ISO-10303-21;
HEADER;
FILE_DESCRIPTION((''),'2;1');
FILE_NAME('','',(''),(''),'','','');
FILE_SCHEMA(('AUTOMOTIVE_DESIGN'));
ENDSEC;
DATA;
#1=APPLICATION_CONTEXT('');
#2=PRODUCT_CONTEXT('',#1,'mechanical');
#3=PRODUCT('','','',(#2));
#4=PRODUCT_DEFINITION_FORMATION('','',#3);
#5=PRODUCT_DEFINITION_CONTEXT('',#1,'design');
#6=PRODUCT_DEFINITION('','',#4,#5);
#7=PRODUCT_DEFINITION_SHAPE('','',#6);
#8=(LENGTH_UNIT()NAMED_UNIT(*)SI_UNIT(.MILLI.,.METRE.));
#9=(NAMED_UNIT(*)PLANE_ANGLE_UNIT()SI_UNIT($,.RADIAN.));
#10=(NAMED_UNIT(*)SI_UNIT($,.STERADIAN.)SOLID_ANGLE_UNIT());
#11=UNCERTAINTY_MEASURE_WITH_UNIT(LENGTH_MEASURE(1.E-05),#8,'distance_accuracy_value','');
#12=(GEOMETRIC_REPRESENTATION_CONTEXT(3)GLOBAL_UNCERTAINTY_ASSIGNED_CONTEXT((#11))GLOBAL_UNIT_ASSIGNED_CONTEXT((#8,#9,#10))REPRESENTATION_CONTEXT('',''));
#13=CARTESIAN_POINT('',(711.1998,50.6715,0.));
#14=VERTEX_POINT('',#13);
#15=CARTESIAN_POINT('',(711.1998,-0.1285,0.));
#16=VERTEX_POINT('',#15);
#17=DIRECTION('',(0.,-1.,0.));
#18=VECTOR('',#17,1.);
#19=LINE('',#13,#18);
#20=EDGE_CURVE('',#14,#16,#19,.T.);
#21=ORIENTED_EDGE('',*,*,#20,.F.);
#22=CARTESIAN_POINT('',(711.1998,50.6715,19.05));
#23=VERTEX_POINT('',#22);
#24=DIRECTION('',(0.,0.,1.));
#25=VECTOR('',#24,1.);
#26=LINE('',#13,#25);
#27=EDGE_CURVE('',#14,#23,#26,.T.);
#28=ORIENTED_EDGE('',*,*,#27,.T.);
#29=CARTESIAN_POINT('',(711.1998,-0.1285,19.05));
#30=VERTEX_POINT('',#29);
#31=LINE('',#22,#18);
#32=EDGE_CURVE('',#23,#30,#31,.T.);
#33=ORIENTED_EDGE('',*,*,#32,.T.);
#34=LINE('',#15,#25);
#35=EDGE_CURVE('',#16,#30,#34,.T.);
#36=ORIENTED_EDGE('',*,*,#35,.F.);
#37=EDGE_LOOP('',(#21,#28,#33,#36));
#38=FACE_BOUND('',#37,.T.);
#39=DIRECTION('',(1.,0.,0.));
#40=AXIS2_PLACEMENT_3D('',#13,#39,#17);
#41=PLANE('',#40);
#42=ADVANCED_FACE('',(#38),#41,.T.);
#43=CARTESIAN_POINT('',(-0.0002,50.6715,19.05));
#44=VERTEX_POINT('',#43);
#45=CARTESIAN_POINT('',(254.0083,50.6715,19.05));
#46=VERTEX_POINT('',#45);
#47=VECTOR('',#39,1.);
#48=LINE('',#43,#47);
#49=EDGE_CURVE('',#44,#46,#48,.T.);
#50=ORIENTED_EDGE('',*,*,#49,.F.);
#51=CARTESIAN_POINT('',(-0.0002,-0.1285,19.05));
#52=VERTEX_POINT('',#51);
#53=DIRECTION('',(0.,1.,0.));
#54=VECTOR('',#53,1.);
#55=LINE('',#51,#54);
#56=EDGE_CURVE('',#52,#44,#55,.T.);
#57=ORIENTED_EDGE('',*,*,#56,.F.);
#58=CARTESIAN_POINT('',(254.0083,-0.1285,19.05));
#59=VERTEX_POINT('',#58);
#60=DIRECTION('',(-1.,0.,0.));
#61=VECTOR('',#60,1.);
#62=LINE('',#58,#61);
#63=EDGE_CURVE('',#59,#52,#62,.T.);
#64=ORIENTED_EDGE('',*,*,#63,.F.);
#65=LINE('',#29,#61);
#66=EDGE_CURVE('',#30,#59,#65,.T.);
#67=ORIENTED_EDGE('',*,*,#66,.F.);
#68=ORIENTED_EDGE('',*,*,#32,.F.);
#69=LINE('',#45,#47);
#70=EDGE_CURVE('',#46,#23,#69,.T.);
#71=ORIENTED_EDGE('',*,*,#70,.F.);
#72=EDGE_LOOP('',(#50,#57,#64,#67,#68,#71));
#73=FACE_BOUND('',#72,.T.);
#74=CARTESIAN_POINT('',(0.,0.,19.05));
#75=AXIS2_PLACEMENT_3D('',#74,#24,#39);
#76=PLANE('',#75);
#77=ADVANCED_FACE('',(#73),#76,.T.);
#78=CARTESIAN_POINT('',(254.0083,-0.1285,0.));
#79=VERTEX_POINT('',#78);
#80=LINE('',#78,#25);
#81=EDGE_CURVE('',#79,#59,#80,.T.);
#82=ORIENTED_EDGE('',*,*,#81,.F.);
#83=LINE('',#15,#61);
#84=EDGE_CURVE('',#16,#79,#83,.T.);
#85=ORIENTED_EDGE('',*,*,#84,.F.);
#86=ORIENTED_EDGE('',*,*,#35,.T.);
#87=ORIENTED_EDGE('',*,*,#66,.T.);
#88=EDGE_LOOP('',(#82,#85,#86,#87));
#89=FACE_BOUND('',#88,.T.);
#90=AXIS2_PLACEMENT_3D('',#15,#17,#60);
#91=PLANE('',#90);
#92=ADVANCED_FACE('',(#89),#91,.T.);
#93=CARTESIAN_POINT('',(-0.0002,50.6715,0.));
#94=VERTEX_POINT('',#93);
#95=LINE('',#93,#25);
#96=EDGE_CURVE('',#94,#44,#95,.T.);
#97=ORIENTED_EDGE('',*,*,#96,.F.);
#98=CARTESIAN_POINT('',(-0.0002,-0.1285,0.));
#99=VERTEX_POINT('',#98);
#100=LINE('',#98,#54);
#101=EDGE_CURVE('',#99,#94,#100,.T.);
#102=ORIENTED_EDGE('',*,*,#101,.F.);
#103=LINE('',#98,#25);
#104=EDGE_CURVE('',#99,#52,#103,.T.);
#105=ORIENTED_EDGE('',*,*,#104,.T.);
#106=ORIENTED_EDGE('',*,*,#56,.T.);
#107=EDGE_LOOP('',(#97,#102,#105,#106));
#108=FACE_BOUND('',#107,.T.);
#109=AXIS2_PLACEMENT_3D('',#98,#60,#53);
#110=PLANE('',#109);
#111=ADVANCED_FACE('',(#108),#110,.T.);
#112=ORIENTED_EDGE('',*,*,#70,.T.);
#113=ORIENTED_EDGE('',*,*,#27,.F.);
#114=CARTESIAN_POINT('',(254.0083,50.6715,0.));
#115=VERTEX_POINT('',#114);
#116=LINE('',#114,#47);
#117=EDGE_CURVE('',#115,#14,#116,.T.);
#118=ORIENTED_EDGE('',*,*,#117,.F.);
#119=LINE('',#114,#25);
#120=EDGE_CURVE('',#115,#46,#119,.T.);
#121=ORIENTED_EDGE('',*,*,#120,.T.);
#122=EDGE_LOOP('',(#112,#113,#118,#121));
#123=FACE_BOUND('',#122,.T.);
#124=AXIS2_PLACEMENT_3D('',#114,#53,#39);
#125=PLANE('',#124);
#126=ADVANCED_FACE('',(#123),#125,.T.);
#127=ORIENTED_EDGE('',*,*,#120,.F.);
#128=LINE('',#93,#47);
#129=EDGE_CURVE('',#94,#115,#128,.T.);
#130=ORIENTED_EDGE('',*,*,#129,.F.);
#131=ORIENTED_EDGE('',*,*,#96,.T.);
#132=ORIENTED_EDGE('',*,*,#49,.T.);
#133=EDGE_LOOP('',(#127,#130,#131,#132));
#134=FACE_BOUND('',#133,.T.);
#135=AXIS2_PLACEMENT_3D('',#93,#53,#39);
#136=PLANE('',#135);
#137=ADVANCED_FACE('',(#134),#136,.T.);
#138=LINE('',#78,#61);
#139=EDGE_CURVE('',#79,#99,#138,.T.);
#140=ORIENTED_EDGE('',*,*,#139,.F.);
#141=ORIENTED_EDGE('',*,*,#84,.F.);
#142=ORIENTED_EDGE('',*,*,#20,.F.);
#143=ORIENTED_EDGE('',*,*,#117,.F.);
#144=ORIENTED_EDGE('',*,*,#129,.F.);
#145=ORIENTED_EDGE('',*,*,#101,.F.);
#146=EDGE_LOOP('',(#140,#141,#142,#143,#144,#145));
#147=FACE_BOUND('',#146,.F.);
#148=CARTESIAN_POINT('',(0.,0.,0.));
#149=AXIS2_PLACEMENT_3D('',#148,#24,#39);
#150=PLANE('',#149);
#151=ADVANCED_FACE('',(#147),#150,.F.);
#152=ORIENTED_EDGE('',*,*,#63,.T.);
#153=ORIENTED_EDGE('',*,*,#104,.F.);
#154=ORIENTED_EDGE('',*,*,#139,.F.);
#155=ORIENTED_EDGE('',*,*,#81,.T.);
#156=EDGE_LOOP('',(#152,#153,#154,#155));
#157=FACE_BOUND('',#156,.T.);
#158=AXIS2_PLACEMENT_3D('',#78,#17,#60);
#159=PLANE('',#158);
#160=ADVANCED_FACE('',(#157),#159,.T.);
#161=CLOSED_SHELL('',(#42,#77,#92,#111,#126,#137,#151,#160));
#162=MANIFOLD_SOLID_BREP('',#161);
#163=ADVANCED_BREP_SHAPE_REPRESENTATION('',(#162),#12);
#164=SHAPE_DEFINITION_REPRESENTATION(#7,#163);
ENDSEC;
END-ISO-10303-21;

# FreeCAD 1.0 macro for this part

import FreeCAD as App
import Part
import Sketcher
Q = App.Units.Quantity


def add_polygon(sketch, points):
    """Adds a closed chain of lines whose ends are joined by coincident constraints."""
    first, n = sketch.GeometryCount, len(points)
    for a, b in zip(points, points[1:] + points[:1]):
        sketch.addGeometry(Part.LineSegment(App.Vector(*a, 0), App.Vector(*b, 0)), False)
    for i in range(n):
        sketch.addConstraint(Sketcher.Constraint("Coincident", first + i, 2, first + (i + 1) % n, 1))

doc = App.newDocument("Part")
body = doc.addObject("PartDesign::Body", "Body")

# Sketch on XY plane
sketch1 = doc.addObject("Sketcher::SketchObject", "Sketch")
body.addObject(sketch1)
sketch1.AttachmentSupport = (doc.XY_Plane, [""])
sketch1.MapMode = "FlatFace"
add_polygon(sketch1, [(0, 0), (711, 0), (711, 51), (0, 51)])  # lines 0-3
sketch1.addConstraint(Sketcher.Constraint("Horizontal", 0))
sketch1.addConstraint(Sketcher.Constraint("Vertical", 1))
sketch1.addConstraint(Sketcher.Constraint("Horizontal", 2))
sketch1.addConstraint(Sketcher.Constraint("Vertical", 3))
sketch1.addConstraint(Sketcher.Constraint("DistanceX", 0, 1, 0, 2, Q("28 in")))
sketch1.addConstraint(Sketcher.Constraint("DistanceY", 1, 1, 1, 2, Q("2 in")))
sketch1.addConstraint(Sketcher.Constraint("DistanceX", -1, 1, 0, 2, Q("28 in")))
sketch1.addConstraint(Sketcher.Constraint("DistanceY", 0, 2, -1, 1, Q("0.1285 mm")))
pad1 = doc.addObject("PartDesign::Pad", "Pad")
body.addObject(pad1)
pad1.Profile = sketch1
pad1.Length = Q("0.75 in")

doc.recompute()
